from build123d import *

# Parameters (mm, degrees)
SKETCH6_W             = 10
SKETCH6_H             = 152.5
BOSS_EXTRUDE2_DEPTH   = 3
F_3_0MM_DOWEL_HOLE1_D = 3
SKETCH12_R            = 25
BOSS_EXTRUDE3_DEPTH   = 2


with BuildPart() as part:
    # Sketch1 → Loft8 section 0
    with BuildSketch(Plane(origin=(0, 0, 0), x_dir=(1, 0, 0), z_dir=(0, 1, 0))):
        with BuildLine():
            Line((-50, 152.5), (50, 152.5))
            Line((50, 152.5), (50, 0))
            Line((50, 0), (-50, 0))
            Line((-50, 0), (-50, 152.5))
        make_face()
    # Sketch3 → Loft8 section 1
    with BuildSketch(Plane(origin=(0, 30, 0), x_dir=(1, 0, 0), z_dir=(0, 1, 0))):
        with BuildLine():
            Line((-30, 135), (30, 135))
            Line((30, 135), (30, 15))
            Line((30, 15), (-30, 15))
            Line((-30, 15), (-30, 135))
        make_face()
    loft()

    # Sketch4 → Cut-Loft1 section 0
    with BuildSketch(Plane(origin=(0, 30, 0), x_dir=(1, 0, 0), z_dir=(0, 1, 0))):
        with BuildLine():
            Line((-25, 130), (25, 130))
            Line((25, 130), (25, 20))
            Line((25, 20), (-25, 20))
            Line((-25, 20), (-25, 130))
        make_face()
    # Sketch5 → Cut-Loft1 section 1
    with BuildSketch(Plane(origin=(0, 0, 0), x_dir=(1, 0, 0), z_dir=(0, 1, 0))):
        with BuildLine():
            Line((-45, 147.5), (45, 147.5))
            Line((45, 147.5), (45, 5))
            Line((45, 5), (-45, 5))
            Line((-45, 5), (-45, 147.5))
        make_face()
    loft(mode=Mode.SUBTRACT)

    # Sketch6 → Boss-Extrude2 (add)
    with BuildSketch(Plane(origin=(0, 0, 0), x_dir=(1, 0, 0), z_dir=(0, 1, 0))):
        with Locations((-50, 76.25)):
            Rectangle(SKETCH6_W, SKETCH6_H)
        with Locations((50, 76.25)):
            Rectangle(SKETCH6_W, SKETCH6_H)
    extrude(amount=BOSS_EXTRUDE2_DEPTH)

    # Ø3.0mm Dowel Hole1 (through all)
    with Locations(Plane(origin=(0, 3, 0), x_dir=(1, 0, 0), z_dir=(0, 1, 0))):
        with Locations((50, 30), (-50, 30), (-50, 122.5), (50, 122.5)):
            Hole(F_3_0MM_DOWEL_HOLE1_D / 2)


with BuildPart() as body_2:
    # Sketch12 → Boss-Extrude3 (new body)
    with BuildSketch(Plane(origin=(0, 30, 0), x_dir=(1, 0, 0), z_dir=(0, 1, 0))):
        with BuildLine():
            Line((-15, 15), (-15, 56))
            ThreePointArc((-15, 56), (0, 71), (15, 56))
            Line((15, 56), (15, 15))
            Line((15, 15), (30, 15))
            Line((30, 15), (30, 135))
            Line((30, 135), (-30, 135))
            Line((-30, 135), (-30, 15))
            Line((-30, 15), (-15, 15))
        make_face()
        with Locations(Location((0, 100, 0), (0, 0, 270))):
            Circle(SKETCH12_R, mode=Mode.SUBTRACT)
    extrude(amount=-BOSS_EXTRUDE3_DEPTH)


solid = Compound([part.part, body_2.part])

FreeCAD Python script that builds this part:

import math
import FreeCAD as App
import Part
import Sketcher

V = App.Vector

doc = App.newDocument("Part")
body = doc.addObject("PartDesign::Body", "Body")

# Sketch on XZ plane
sketch1 = body.newObject("Sketcher::SketchObject", "Sketch")
sketch1.AttachmentSupport = (doc.getObject("XZ_Plane"), [""])
sketch1.MapMode = "FlatFace"
sketch1.addGeometry(Part.LineSegment(V(50, -152, 0), V(-50, -152, 0)), False)
sketch1.addGeometry(Part.LineSegment(V(-50, -152, 0), V(-50, 0, 0)), False)
sketch1.addGeometry(Part.LineSegment(V(-50, 0, 0), V(50, 0, 0)), False)
sketch1.addGeometry(Part.LineSegment(V(50, 0, 0), V(50, -152, 0)), False)
sketch1.addConstraint(Sketcher.Constraint("Coincident", 0, 2, 1, 1))
sketch1.addConstraint(Sketcher.Constraint("Coincident", 1, 2, 2, 1))
sketch1.addConstraint(Sketcher.Constraint("Coincident", 2, 2, 3, 1))
sketch1.addConstraint(Sketcher.Constraint("Coincident", 3, 2, 0, 1))
sketch1.addConstraint(Sketcher.Constraint("Horizontal", 0))
sketch1.addConstraint(Sketcher.Constraint("Vertical", 1))
sketch1.addConstraint(Sketcher.Constraint("Horizontal", 2))
sketch1.addConstraint(Sketcher.Constraint("Vertical", 3))
sketch1.addConstraint(Sketcher.Constraint("Symmetric", 1, 2, 2, 2, -1, 1))
sketch1.addConstraint(Sketcher.Constraint("DistanceX", 0, 2, 0, 1, 100.0))
sketch1.addConstraint(Sketcher.Constraint("DistanceY", 1, 1, 1, 2, 152.5))

# Sketch on XZ plane
sketch2 = body.newObject("Sketcher::SketchObject", "Sketch001")
sketch2.AttachmentSupport = (doc.getObject("XZ_Plane"), [""])
sketch2.MapMode = "FlatFace"
sketch2.AttachmentOffset = App.Placement(V(0, 0, -30), App.Rotation())
sketch2.addGeometry(Part.LineSegment(V(30, -135, 0), V(-30, -135, 0)), False)
sketch2.addGeometry(Part.LineSegment(V(-30, -135, 0), V(-30, -15, 0)), False)
sketch2.addGeometry(Part.LineSegment(V(-30, -15, 0), V(30, -15, 0)), False)
sketch2.addGeometry(Part.LineSegment(V(30, -15, 0), V(30, -135, 0)), False)
sketch2.addConstraint(Sketcher.Constraint("Coincident", 0, 2, 1, 1))
sketch2.addConstraint(Sketcher.Constraint("Coincident", 1, 2, 2, 1))
sketch2.addConstraint(Sketcher.Constraint("Coincident", 2, 2, 3, 1))
sketch2.addConstraint(Sketcher.Constraint("Coincident", 3, 2, 0, 1))
sketch2.addConstraint(Sketcher.Constraint("Horizontal", 0))
sketch2.addConstraint(Sketcher.Constraint("Vertical", 1))
sketch2.addConstraint(Sketcher.Constraint("Horizontal", 2))
sketch2.addConstraint(Sketcher.Constraint("Vertical", 3))
sketch2.addConstraint(Sketcher.Constraint("DistanceX", 0, 2, 0, 1, 60.0))
sketch2.addConstraint(Sketcher.Constraint("DistanceY", 1, 1, 1, 2, 120.0))
sketch2.addConstraint(Sketcher.Constraint("DistanceX", 0, 2, -1, 1, 30.0))
sketch2.addConstraint(Sketcher.Constraint("DistanceY", 0, 2, -1, 1, 135.0))

additiveloft = body.newObject("PartDesign::AdditiveLoft", "AdditiveLoft")
additiveloft.Profile = sketch1
additiveloft.Sections = [sketch2]

# Sketch on XZ plane
sketch3 = body.newObject("Sketcher::SketchObject", "Sketch002")
sketch3.AttachmentSupport = (doc.getObject("XZ_Plane"), [""])
sketch3.MapMode = "FlatFace"
sketch3.AttachmentOffset = App.Placement(V(0, 0, -30), App.Rotation())
sketch3.addGeometry(Part.LineSegment(V(25, -130, 0), V(-25, -130, 0)), False)
sketch3.addGeometry(Part.LineSegment(V(-25, -130, 0), V(-25, -20, 0)), False)
sketch3.addGeometry(Part.LineSegment(V(-25, -20, 0), V(25, -20, 0)), False)
sketch3.addGeometry(Part.LineSegment(V(25, -20, 0), V(25, -130, 0)), False)
sketch3.addConstraint(Sketcher.Constraint("Coincident", 0, 2, 1, 1))
sketch3.addConstraint(Sketcher.Constraint("Coincident", 1, 2, 2, 1))
sketch3.addConstraint(Sketcher.Constraint("Coincident", 2, 2, 3, 1))
sketch3.addConstraint(Sketcher.Constraint("Coincident", 3, 2, 0, 1))
sketch3.addConstraint(Sketcher.Constraint("Horizontal", 0))
sketch3.addConstraint(Sketcher.Constraint("Vertical", 1))
sketch3.addConstraint(Sketcher.Constraint("Horizontal", 2))
sketch3.addConstraint(Sketcher.Constraint("Vertical", 3))
sketch3.addConstraint(Sketcher.Constraint("DistanceX", 0, 2, 0, 1, 50.0))
sketch3.addConstraint(Sketcher.Constraint("DistanceY", 1, 1, 1, 2, 110.0))
sketch3.addConstraint(Sketcher.Constraint("DistanceX", 0, 2, -1, 1, 25.0))
sketch3.addConstraint(Sketcher.Constraint("DistanceY", 0, 2, -1, 1, 130.0))

# Sketch on XZ plane
sketch4 = body.newObject("Sketcher::SketchObject", "Sketch003")
sketch4.AttachmentSupport = (doc.getObject("XZ_Plane"), [""])
sketch4.MapMode = "FlatFace"
sketch4.addGeometry(Part.LineSegment(V(45, -148, 0), V(-45, -148, 0)), False)
sketch4.addGeometry(Part.LineSegment(V(-45, -148, 0), V(-45, -5, 0)), False)
sketch4.addGeometry(Part.LineSegment(V(-45, -5, 0), V(45, -5, 0)), False)
sketch4.addGeometry(Part.LineSegment(V(45, -5, 0), V(45, -148, 0)), False)
sketch4.addConstraint(Sketcher.Constraint("Coincident", 0, 2, 1, 1))
sketch4.addConstraint(Sketcher.Constraint("Coincident", 1, 2, 2, 1))
sketch4.addConstraint(Sketcher.Constraint("Coincident", 2, 2, 3, 1))
sketch4.addConstraint(Sketcher.Constraint("Coincident", 3, 2, 0, 1))
sketch4.addConstraint(Sketcher.Constraint("Horizontal", 0))
sketch4.addConstraint(Sketcher.Constraint("Vertical", 1))
sketch4.addConstraint(Sketcher.Constraint("Horizontal", 2))
sketch4.addConstraint(Sketcher.Constraint("Vertical", 3))
sketch4.addConstraint(Sketcher.Constraint("DistanceX", 0, 2, 0, 1, 90.0))
sketch4.addConstraint(Sketcher.Constraint("DistanceY", 1, 1, 1, 2, 142.5))
sketch4.addConstraint(Sketcher.Constraint("DistanceX", 0, 2, -1, 1, 45.0))
sketch4.addConstraint(Sketcher.Constraint("DistanceY", 1, 2, -1, 1, 5.0))

subtractiveloft = body.newObject("PartDesign::SubtractiveLoft", "SubtractiveLoft")
subtractiveloft.Profile = sketch3
subtractiveloft.Sections = [sketch4]

# Sketch on XZ plane
sketch5 = body.newObject("Sketcher::SketchObject", "Sketch004")
sketch5.AttachmentSupport = (doc.getObject("XZ_Plane"), [""])
sketch5.MapMode = "FlatFace"
sketch5.addGeometry(Part.LineSegment(V(-55, -152, 0), V(-55, 0, 0)), False)
sketch5.addGeometry(Part.LineSegment(V(-55, 0, 0), V(-45, 0, 0)), False)
sketch5.addGeometry(Part.LineSegment(V(-45, 0, 0), V(-45, -152, 0)), False)
sketch5.addGeometry(Part.LineSegment(V(-45, -152, 0), V(-55, -152, 0)), False)
sketch5.addGeometry(Part.LineSegment(V(45, -152, 0), V(45, 0, 0)), False)
sketch5.addGeometry(Part.LineSegment(V(45, 0, 0), V(55, 0, 0)), False)
sketch5.addGeometry(Part.LineSegment(V(55, 0, 0), V(55, -152, 0)), False)
sketch5.addGeometry(Part.LineSegment(V(55, -152, 0), V(45, -152, 0)), False)
sketch5.addConstraint(Sketcher.Constraint("Coincident", 0, 2, 1, 1))
sketch5.addConstraint(Sketcher.Constraint("Coincident", 1, 2, 2, 1))
sketch5.addConstraint(Sketcher.Constraint("Coincident", 2, 2, 3, 1))
sketch5.addConstraint(Sketcher.Constraint("Coincident", 3, 2, 0, 1))
sketch5.addConstraint(Sketcher.Constraint("Coincident", 4, 2, 5, 1))
sketch5.addConstraint(Sketcher.Constraint("Coincident", 5, 2, 6, 1))
sketch5.addConstraint(Sketcher.Constraint("Coincident", 6, 2, 7, 1))
sketch5.addConstraint(Sketcher.Constraint("Coincident", 7, 2, 4, 1))
sketch5.addConstraint(Sketcher.Constraint("Vertical", 0))
sketch5.addConstraint(Sketcher.Constraint("Horizontal", 1))
sketch5.addConstraint(Sketcher.Constraint("Vertical", 2))
sketch5.addConstraint(Sketcher.Constraint("Horizontal", 3))
sketch5.addConstraint(Sketcher.Constraint("Vertical", 4))
sketch5.addConstraint(Sketcher.Constraint("Horizontal", 5))
sketch5.addConstraint(Sketcher.Constraint("Vertical", 6))
sketch5.addConstraint(Sketcher.Constraint("Horizontal", 7))
sketch5.addConstraint(Sketcher.Constraint("Symmetric", 1, 2, 4, 2, -1, 1))
sketch5.addConstraint(Sketcher.Constraint("Symmetric", 0, 2, 5, 2, -2))
sketch5.addConstraint(Sketcher.Constraint("Horizontal", 3, 2, 6, 2))
sketch5.addConstraint(Sketcher.Constraint("DistanceX", 1, 1, 1, 2, 10.0))
sketch5.addConstraint(Sketcher.Constraint("DistanceY", 0, 1, 0, 2, 152.5))
sketch5.addConstraint(Sketcher.Constraint("DistanceX", 0, 2, -1, 1, 55.0))
pad1 = body.newObject("PartDesign::Pad", "Pad")
pad1.Profile = sketch5
pad1.Length = 3
pad1.Reversed = True

# Sketch on XZ plane
sketch6 = body.newObject("Sketcher::SketchObject", "Sketch005")
sketch6.AttachmentSupport = (doc.getObject("XZ_Plane"), [""])
sketch6.MapMode = "FlatFace"
sketch6.AttachmentOffset = App.Placement(V(0, 0, -3), App.Rotation())
sketch6.addGeometry(Part.Circle(V(50, -30, 0), V(0, 0, 1), 1.5), False)
sketch6.addGeometry(Part.Circle(V(-50, -30, 0), V(0, 0, 1), 1.5), False)
sketch6.addGeometry(Part.Circle(V(-50, -122.5, 0), V(0, 0, 1), 1.5), False)
sketch6.addGeometry(Part.Circle(V(50, -122.5, 0), V(0, 0, 1), 1.5), False)
sketch6.addConstraint(Sketcher.Constraint("Equal", 0, 1))
sketch6.addConstraint(Sketcher.Constraint("Equal", 1, 2))
sketch6.addConstraint(Sketcher.Constraint("Equal", 2, 3))
sketch6.addConstraint(Sketcher.Constraint("Symmetric", 0, 3, 1, 3, -2))
sketch6.addConstraint(Sketcher.Constraint("Symmetric", 2, 3, 3, 3, -2))
sketch6.addConstraint(Sketcher.Constraint("Vertical", 1, 3, 2, 3))
sketch6.addConstraint(Sketcher.Constraint("Diameter", 0, 3.0))
sketch6.addConstraint(Sketcher.Constraint("DistanceX", -1, 1, 0, 3, 50.0))
sketch6.addConstraint(Sketcher.Constraint("DistanceY", 0, 3, -1, 1, 30.0))
sketch6.addConstraint(Sketcher.Constraint("DistanceY", 2, 3, -1, 1, 122.5))
doc.recompute()
hole = body.newObject("PartDesign::Hole", "Hole")
hole.Profile = sketch6
hole.ThreadType = "None"
hole.Diameter = 3
hole.DepthType = "ThroughAll"
hole.Reversed = True
body2 = doc.addObject("PartDesign::Body", "Body001")

# Sketch on XZ plane
sketch7 = body2.newObject("Sketcher::SketchObject", "Sketch006")
sketch7.AttachmentSupport = (doc.getObject("XZ_Plane001"), [""])
sketch7.MapMode = "FlatFace"
sketch7.AttachmentOffset = App.Placement(V(0, 0, -30), App.Rotation())
sketch7.addGeometry(Part.LineSegment(V(-15, -15, 0), V(-15, -56, 0)), False)
sketch7.addGeometry(Part.ArcOfCircle(Part.Circle(V(0, -56, 0), V(0, 0, 1), 15), math.radians(180), math.radians(360)), False)
sketch7.addGeometry(Part.LineSegment(V(15, -56, 0), V(15, -15, 0)), False)
sketch7.addGeometry(Part.LineSegment(V(15, -15, 0), V(30, -15, 0)), False)
sketch7.addGeometry(Part.LineSegment(V(30, -15, 0), V(30, -135, 0)), False)
sketch7.addGeometry(Part.LineSegment(V(30, -135, 0), V(-30, -135, 0)), False)
sketch7.addGeometry(Part.LineSegment(V(-30, -135, 0), V(-30, -15, 0)), False)
sketch7.addGeometry(Part.LineSegment(V(-30, -15, 0), V(-15, -15, 0)), False)
sketch7.addGeometry(Part.Circle(V(0, -100, 0), V(0, 0, 1), 25), False)
sketch7.addConstraint(Sketcher.Constraint("Tangent", 0, 2, 1, 1))
sketch7.addConstraint(Sketcher.Constraint("Tangent", 1, 2, 2, 1))
sketch7.addConstraint(Sketcher.Constraint("Coincident", 2, 2, 3, 1))
sketch7.addConstraint(Sketcher.Constraint("Coincident", 3, 2, 4, 1))
sketch7.addConstraint(Sketcher.Constraint("Coincident", 4, 2, 5, 1))
sketch7.addConstraint(Sketcher.Constraint("Coincident", 5, 2, 6, 1))
sketch7.addConstraint(Sketcher.Constraint("Coincident", 6, 2, 7, 1))
sketch7.addConstraint(Sketcher.Constraint("Coincident", 7, 2, 0, 1))
sketch7.addConstraint(Sketcher.Constraint("Vertical", 0))
sketch7.addConstraint(Sketcher.Constraint("Vertical", 2))
sketch7.addConstraint(Sketcher.Constraint("Horizontal", 3))
sketch7.addConstraint(Sketcher.Constraint("Vertical", 4))
sketch7.addConstraint(Sketcher.Constraint("Horizontal", 5))
sketch7.addConstraint(Sketcher.Constraint("Vertical", 6))
sketch7.addConstraint(Sketcher.Constraint("Horizontal", 7))
sketch7.addConstraint(Sketcher.Constraint("Symmetric", 3, 2, 6, 2, -2))
sketch7.addConstraint(Sketcher.Constraint("PointOnObject", 1, 3, -2))
sketch7.addConstraint(Sketcher.Constraint("PointOnObject", 8, 3, -2))
sketch7.addConstraint(Sketcher.Constraint("Diameter", 8, 50.0))
sketch7.addConstraint(Sketcher.Constraint("Radius", 1, 15.0))
sketch7.addConstraint(Sketcher.Constraint("DistanceX", 3, 1, 3, 2, 15.0))
sketch7.addConstraint(Sketcher.Constraint("DistanceY", 0, 2, 0, 1, 41.0))
sketch7.addConstraint(Sketcher.Constraint("DistanceY", 4, 2, 4, 1, 120.0))
sketch7.addConstraint(Sketcher.Constraint("DistanceY", 1, 3, -1, 1, 56.0))
sketch7.addConstraint(Sketcher.Constraint("DistanceY", 8, 3, -1, 1, 100.0))
pad2 = body2.newObject("PartDesign::Pad", "Pad001")
pad2.Profile = sketch7
pad2.Length = 2

doc.recompute()
